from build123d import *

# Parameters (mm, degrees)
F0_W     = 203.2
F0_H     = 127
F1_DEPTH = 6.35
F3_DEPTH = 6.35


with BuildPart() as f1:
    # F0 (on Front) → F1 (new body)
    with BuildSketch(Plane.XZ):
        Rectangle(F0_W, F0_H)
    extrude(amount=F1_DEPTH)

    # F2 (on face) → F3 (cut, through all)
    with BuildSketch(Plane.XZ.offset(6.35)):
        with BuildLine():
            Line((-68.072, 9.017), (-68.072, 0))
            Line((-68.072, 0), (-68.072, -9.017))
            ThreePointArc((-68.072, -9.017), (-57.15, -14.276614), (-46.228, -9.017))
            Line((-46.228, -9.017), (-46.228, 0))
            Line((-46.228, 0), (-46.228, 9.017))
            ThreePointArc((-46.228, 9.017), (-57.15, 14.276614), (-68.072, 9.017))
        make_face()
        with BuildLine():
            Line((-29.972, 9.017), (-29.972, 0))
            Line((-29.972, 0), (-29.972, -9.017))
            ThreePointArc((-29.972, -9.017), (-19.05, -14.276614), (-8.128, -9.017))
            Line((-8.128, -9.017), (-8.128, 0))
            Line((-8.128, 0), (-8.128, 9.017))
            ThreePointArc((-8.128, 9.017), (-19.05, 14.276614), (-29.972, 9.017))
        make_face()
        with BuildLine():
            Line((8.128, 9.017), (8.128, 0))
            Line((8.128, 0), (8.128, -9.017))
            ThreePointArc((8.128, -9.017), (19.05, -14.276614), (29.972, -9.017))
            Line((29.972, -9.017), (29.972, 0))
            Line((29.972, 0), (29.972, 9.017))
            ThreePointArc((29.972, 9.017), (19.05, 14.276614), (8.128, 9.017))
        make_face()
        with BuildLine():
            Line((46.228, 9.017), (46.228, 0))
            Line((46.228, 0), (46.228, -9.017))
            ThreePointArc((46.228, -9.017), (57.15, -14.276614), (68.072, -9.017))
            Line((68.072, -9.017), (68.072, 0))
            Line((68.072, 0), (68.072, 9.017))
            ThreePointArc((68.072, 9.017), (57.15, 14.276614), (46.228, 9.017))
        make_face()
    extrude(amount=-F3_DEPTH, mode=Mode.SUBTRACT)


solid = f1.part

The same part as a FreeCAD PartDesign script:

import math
import FreeCAD as App
import Part
import Sketcher
from FreeCAD import Vector
Q = App.Units.Quantity

doc = App.newDocument("Part")
params = doc.addObject("Spreadsheet::Sheet", "Params")
for row, (alias, value) in enumerate([
    ("sketch1_width", "8 in"),
    ("sketch1_height", "5 in"),
    ("pad1_length", "0.25 in"),
    ("sketch2_radius", "0.55 in"),
    ("sketch2_height", "0.71 in"),
], start=1):
    params.set(f"A{row}", alias)
    params.set(f"B{row}", "=" + value)
    params.setAlias(f"B{row}", alias)

body = doc.addObject("PartDesign::Body", "Body")

# Sketch on XZ plane
sketch1 = body.newObject("Sketcher::SketchObject", "Sketch")
sketch1.AttachmentSupport = (doc.getObject("XZ_Plane"), [""])
sketch1.MapMode = "FlatFace"
sketch1.addGeometry(Part.LineSegment(Vector(-102, 64, 0), Vector(-102, -64, 0)), False)
sketch1.addGeometry(Part.LineSegment(Vector(-102, -64, 0), Vector(102, -64, 0)), False)
sketch1.addGeometry(Part.LineSegment(Vector(102, -64, 0), Vector(102, 64, 0)), False)
sketch1.addGeometry(Part.LineSegment(Vector(102, 64, 0), Vector(-102, 64, 0)), False)
sketch1.addConstraint(Sketcher.Constraint("Coincident", 0, 2, 1, 1))
sketch1.addConstraint(Sketcher.Constraint("Coincident", 1, 2, 2, 1))
sketch1.addConstraint(Sketcher.Constraint("Coincident", 2, 2, 3, 1))
sketch1.addConstraint(Sketcher.Constraint("Coincident", 3, 2, 0, 1))
sketch1.addConstraint(Sketcher.Constraint("Vertical", 0))
sketch1.addConstraint(Sketcher.Constraint("Horizontal", 1))
sketch1.addConstraint(Sketcher.Constraint("Vertical", 2))
sketch1.addConstraint(Sketcher.Constraint("Horizontal", 3))
sketch1.addConstraint(Sketcher.Constraint("Symmetric", 0, 2, 2, 2, -1, 1))
sketch1.addConstraint(Sketcher.Constraint("DistanceX", 1, 1, 1, 2, Q("8 in")))
sketch1.addConstraint(Sketcher.Constraint("DistanceY", 0, 2, 0, 1, Q("5 in")))
sketch1.setExpression("Constraints[9]", "Params.sketch1_width")
sketch1.setExpression("Constraints[10]", "Params.sketch1_height")
pad1 = body.newObject("PartDesign::Pad", "Pad")
pad1.Profile = sketch1
pad1.setExpression("Length", "Params.pad1_length")

# Sketch on XZ plane
sketch2 = body.newObject("Sketcher::SketchObject", "Sketch001")
sketch2.AttachmentSupport = (doc.getObject("XZ_Plane"), [""])
sketch2.MapMode = "FlatFace"
sketch2.AttachmentOffset = App.Placement(Vector(0, 0, 0.25 * 25.4), App.Rotation())
sketch2.addGeometry(Part.LineSegment(Vector(-68, 9, 0), Vector(-68, -9, 0)), False)
sketch2.addGeometry(Part.ArcOfCircle(Part.Circle(Vector(-57, 0, 0), Vector(0, 0, 1), 14), math.radians(-141), math.radians(-39)), False)
sketch2.addGeometry(Part.LineSegment(Vector(-46, -9, 0), Vector(-46, 9, 0)), False)
sketch2.addGeometry(Part.ArcOfCircle(Part.Circle(Vector(-57, 0, 0), Vector(0, 0, 1), 14), math.radians(39), math.radians(141)), False)
sketch2.addGeometry(Part.LineSegment(Vector(-30, 9, 0), Vector(-30, -9, 0)), False)
sketch2.addGeometry(Part.ArcOfCircle(Part.Circle(Vector(-19, 0, 0), Vector(0, 0, 1), 14), math.radians(-141), math.radians(-39)), False)
sketch2.addGeometry(Part.LineSegment(Vector(-8, -9, 0), Vector(-8, 9, 0)), False)
sketch2.addGeometry(Part.ArcOfCircle(Part.Circle(Vector(-19, 0, 0), Vector(0, 0, 1), 14), math.radians(39), math.radians(141)), False)
sketch2.addGeometry(Part.LineSegment(Vector(8, 9, 0), Vector(8, -9, 0)), False)
sketch2.addGeometry(Part.ArcOfCircle(Part.Circle(Vector(19, 0, 0), Vector(0, 0, 1), 14), math.radians(-141), math.radians(-39)), False)
sketch2.addGeometry(Part.LineSegment(Vector(30, -9, 0), Vector(30, 9, 0)), False)
sketch2.addGeometry(Part.ArcOfCircle(Part.Circle(Vector(19, 0, 0), Vector(0, 0, 1), 14), math.radians(39), math.radians(141)), False)
sketch2.addGeometry(Part.LineSegment(Vector(46, 9, 0), Vector(46, -9, 0)), False)
sketch2.addGeometry(Part.ArcOfCircle(Part.Circle(Vector(57, 0, 0), Vector(0, 0, 1), 14), math.radians(-141), math.radians(-39)), False)
sketch2.addGeometry(Part.LineSegment(Vector(68, -9, 0), Vector(68, 9, 0)), False)
sketch2.addGeometry(Part.ArcOfCircle(Part.Circle(Vector(57, 0, 0), Vector(0, 0, 1), 14), math.radians(39), math.radians(141)), False)
sketch2.addConstraint(Sketcher.Constraint("Coincident", 0, 2, 1, 1))
sketch2.addConstraint(Sketcher.Constraint("Coincident", 1, 2, 2, 1))
sketch2.addConstraint(Sketcher.Constraint("Coincident", 2, 2, 3, 1))
sketch2.addConstraint(Sketcher.Constraint("Coincident", 3, 2, 0, 1))
sketch2.addConstraint(Sketcher.Constraint("Coincident", 4, 2, 5, 1))
sketch2.addConstraint(Sketcher.Constraint("Coincident", 5, 2, 6, 1))
sketch2.addConstraint(Sketcher.Constraint("Coincident", 6, 2, 7, 1))
sketch2.addConstraint(Sketcher.Constraint("Coincident", 7, 2, 4, 1))
sketch2.addConstraint(Sketcher.Constraint("Coincident", 8, 2, 9, 1))
sketch2.addConstraint(Sketcher.Constraint("Coincident", 9, 2, 10, 1))
sketch2.addConstraint(Sketcher.Constraint("Coincident", 10, 2, 11, 1))
sketch2.addConstraint(Sketcher.Constraint("Coincident", 11, 2, 8, 1))
sketch2.addConstraint(Sketcher.Constraint("Coincident", 12, 2, 13, 1))
sketch2.addConstraint(Sketcher.Constraint("Coincident", 13, 2, 14, 1))
sketch2.addConstraint(Sketcher.Constraint("Coincident", 14, 2, 15, 1))
sketch2.addConstraint(Sketcher.Constraint("Coincident", 15, 2, 12, 1))
sketch2.addConstraint(Sketcher.Constraint("Vertical", 0))
sketch2.addConstraint(Sketcher.Constraint("Vertical", 2))
sketch2.addConstraint(Sketcher.Constraint("Vertical", 4))
sketch2.addConstraint(Sketcher.Constraint("Vertical", 6))
sketch2.addConstraint(Sketcher.Constraint("Vertical", 8))
sketch2.addConstraint(Sketcher.Constraint("Vertical", 10))
sketch2.addConstraint(Sketcher.Constraint("Vertical", 12))
sketch2.addConstraint(Sketcher.Constraint("Vertical", 14))
sketch2.addConstraint(Sketcher.Constraint("Equal", 1, 3))
sketch2.addConstraint(Sketcher.Constraint("Equal", 3, 5))
sketch2.addConstraint(Sketcher.Constraint("Equal", 5, 7))
sketch2.addConstraint(Sketcher.Constraint("Equal", 7, 9))
sketch2.addConstraint(Sketcher.Constraint("Equal", 9, 11))
sketch2.addConstraint(Sketcher.Constraint("Equal", 11, 13))
sketch2.addConstraint(Sketcher.Constraint("Equal", 13, 15))
sketch2.addConstraint(Sketcher.Constraint("Symmetric", 7, 3, 9, 3, -1, 1))
sketch2.addConstraint(Sketcher.Constraint("Symmetric", 5, 3, 11, 3, -1, 1))
sketch2.addConstraint(Sketcher.Constraint("Symmetric", 3, 3, 13, 3, -1, 1))
sketch2.addConstraint(Sketcher.Constraint("Symmetric", 1, 3, 15, 3, -1, 1))
sketch2.addConstraint(Sketcher.Constraint("Symmetric", 5, 3, 9, 3, -2))
sketch2.addConstraint(Sketcher.Constraint("Symmetric", 1, 3, 13, 3, -2))
sketch2.addConstraint(Sketcher.Constraint("Horizontal", 1, 3, 5, 3))
sketch2.addConstraint(Sketcher.Constraint("Horizontal", 0, 2, 1, 2))
sketch2.addConstraint(Sketcher.Constraint("Horizontal", 1, 2, 4, 2))
sketch2.addConstraint(Sketcher.Constraint("Horizontal", 4, 2, 5, 2))
sketch2.addConstraint(Sketcher.Constraint("Horizontal", 5, 2, 8, 2))
sketch2.addConstraint(Sketcher.Constraint("Horizontal", 8, 2, 9, 2))
sketch2.addConstraint(Sketcher.Constraint("Horizontal", 9, 2, 12, 2))
sketch2.addConstraint(Sketcher.Constraint("Horizontal", 12, 2, 13, 2))
sketch2.addConstraint(Sketcher.Constraint("Radius", 1, Q("0.55 in")))
sketch2.addConstraint(Sketcher.Constraint("DistanceX", 1, 3, 9, 3, Q("3 in")))
sketch2.addConstraint(Sketcher.Constraint("DistanceY", 0, 2, 0, 1, Q("0.71 in")))
sketch2.addConstraint(Sketcher.Constraint("DistanceX", 1, 3, 5, 3, Q("1.5 in")))
sketch2.addConstraint(Sketcher.Constraint("DistanceX", 0, 2, -1, 1, Q("2.68 in")))
sketch2.setExpression("Constraints[45]", "Params.sketch2_radius")
sketch2.setExpression("Constraints[47]", "Params.sketch2_height")
pocket1 = body.newObject("PartDesign::Pocket", "Pocket")
pocket1.Profile = sketch2
pocket1.Type = "ThroughAll"

doc.recompute()
